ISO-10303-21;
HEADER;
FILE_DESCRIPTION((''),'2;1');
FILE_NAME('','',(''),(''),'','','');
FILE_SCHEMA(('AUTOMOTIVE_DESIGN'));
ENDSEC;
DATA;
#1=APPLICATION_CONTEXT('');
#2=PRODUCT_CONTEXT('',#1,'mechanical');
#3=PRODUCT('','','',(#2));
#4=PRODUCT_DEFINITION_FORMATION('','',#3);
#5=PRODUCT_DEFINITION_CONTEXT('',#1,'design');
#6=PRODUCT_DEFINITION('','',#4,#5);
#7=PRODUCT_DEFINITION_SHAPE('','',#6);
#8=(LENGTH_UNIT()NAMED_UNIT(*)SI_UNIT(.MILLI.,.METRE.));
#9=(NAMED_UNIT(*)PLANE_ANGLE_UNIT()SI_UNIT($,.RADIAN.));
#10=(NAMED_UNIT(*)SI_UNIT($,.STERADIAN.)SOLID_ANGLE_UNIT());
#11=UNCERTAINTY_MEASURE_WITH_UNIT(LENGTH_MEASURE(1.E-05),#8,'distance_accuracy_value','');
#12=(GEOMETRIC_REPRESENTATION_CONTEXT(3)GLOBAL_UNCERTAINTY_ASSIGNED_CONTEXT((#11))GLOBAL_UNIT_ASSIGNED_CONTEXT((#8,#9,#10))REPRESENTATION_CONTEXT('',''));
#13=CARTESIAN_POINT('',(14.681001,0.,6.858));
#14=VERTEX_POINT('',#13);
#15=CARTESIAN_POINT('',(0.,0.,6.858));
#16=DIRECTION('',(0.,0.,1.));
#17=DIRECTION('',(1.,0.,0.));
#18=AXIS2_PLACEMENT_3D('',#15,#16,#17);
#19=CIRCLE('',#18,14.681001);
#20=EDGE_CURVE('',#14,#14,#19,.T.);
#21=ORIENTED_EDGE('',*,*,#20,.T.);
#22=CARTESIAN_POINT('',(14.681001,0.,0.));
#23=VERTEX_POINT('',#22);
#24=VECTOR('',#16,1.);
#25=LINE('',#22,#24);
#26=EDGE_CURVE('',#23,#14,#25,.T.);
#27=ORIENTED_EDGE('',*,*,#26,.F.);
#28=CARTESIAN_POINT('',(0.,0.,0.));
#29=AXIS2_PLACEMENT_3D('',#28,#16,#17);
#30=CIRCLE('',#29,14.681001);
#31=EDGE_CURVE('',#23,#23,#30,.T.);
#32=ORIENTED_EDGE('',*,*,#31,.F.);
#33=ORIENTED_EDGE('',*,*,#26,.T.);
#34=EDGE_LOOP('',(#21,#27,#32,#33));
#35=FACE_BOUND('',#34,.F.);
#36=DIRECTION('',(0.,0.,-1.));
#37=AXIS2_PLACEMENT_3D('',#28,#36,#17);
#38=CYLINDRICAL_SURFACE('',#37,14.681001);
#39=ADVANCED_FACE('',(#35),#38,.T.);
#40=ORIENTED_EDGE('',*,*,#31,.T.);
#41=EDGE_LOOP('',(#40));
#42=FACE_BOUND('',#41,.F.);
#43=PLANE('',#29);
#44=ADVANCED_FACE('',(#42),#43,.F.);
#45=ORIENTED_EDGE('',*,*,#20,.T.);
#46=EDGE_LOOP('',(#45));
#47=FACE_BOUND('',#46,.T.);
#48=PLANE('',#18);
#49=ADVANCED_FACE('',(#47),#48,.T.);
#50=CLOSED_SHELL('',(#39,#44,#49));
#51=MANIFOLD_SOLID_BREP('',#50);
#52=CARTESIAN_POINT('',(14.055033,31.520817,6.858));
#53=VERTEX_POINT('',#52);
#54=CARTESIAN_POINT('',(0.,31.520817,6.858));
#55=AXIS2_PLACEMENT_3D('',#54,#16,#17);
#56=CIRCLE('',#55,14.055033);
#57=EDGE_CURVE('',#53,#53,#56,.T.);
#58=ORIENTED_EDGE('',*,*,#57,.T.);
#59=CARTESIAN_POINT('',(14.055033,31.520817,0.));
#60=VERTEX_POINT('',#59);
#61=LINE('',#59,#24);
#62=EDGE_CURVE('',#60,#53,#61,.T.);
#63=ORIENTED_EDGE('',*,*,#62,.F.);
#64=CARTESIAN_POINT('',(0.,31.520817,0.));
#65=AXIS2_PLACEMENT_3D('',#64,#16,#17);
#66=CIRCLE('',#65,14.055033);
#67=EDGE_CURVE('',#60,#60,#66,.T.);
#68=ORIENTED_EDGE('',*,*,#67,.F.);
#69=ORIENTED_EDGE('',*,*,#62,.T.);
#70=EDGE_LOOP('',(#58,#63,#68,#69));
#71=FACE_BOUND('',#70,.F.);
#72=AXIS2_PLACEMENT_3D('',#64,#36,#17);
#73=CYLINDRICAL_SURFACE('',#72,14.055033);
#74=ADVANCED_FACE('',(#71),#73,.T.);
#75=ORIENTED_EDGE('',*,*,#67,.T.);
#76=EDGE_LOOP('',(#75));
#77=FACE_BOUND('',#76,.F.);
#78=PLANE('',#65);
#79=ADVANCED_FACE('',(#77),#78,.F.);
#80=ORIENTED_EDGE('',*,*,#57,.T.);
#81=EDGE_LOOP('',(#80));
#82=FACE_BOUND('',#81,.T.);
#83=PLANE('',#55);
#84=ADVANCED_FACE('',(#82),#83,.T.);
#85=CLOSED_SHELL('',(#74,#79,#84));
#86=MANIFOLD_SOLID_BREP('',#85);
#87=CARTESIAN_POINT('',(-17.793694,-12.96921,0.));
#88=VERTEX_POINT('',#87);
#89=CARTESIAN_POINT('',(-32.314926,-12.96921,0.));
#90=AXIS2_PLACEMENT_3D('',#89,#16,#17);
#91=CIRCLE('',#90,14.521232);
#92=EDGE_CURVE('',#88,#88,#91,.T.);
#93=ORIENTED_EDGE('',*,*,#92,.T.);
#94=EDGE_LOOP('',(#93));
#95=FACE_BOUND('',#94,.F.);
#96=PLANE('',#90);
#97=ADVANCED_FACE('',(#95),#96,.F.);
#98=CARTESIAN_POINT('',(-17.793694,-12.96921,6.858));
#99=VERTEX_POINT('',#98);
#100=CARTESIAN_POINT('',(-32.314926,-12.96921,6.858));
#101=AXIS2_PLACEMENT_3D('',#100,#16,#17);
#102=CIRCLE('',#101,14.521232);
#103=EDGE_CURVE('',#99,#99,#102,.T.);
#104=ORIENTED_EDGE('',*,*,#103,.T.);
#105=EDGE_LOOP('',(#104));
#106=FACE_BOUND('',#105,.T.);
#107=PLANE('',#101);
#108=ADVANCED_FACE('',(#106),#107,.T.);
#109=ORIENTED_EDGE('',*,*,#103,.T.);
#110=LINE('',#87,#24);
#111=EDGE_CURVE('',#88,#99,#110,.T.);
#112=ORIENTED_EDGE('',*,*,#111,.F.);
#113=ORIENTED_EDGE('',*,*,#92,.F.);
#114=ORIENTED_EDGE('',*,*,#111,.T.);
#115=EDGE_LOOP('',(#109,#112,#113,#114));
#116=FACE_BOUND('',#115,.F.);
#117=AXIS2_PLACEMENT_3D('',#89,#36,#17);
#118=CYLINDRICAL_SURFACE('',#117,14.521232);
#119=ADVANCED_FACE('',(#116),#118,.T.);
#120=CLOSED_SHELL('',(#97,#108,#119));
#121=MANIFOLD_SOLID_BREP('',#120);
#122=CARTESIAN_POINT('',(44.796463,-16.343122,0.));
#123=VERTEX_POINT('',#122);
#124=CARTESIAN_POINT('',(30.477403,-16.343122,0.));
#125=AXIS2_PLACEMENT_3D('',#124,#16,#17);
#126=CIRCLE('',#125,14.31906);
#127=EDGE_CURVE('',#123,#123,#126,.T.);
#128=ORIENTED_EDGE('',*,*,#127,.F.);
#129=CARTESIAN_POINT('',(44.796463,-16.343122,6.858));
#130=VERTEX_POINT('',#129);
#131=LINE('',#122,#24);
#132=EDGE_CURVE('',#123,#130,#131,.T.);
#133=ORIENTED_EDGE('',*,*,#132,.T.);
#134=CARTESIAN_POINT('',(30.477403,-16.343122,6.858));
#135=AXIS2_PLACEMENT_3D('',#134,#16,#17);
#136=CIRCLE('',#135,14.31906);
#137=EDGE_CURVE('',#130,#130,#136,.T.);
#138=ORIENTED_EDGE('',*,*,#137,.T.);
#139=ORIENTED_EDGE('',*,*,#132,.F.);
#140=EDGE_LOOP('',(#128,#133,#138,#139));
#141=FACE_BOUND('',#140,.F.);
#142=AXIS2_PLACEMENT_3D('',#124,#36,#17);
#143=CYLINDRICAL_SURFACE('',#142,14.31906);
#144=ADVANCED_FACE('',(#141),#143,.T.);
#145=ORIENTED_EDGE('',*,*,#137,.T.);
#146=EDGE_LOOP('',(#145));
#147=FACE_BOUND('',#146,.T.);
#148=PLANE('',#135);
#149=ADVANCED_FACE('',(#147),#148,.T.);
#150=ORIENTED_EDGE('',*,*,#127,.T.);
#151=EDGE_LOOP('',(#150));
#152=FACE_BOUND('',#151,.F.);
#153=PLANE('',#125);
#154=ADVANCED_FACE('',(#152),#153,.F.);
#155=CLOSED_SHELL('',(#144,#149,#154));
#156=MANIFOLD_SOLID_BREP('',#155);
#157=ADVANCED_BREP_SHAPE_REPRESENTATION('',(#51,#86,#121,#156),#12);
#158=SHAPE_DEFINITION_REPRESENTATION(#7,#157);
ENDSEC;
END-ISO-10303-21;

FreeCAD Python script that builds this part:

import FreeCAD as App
import Part
import Sketcher
from FreeCAD import Vector
Q = App.Units.Quantity

doc = App.newDocument("Part")
body = doc.addObject("PartDesign::Body", "Body")
body.AllowCompound = True

# Sketch on XY plane
sketch1 = body.newObject("Sketcher::SketchObject", "Sketch")
sketch1.AttachmentSupport = (doc.getObject("XY_Plane"), [""])
sketch1.MapMode = "FlatFace"
sketch1.addGeometry([
    Part.Circle(Vector(30, -16, 0), Vector(0, 0, 1), 14),
    Part.Circle(Vector(0, 0, 0), Vector(0, 0, 1), 15),
    Part.Circle(Vector(0, 32, 0), Vector(0, 0, 1), 14),
    Part.Circle(Vector(-32, -13, 0), Vector(0, 0, 1), 15),
], False)
sketch1.addConstraint([
    Sketcher.Constraint("Coincident", 1, 3, -1, 1),
    Sketcher.Constraint("PointOnObject", 2, 3, -2),
    Sketcher.Constraint("Diameter", 0, 28.63812),
    Sketcher.Constraint("Diameter", 1, 29.362002),
    Sketcher.Constraint("Diameter", 2, 28.110066),
    Sketcher.Constraint("Diameter", 3, 29.042464),
    Sketcher.Constraint("DistanceY", 3, 3, -1, 1, 12.96921),
    Sketcher.Constraint("DistanceY", 0, 3, 2, 3, 47.863939),
    Sketcher.Constraint("DistanceX", 3, 3, 0, 3, 62.792329),
    Sketcher.Constraint("DistanceX", -1, 1, 0, 3, 30.477403),
    Sketcher.Constraint("DistanceY", 0, 3, -1, 1, 16.343122),
])
pad1 = body.newObject("PartDesign::Pad", "Pad")
pad1.Profile = sketch1
pad1.Length = Q("0.27 in")

doc.recompute()
